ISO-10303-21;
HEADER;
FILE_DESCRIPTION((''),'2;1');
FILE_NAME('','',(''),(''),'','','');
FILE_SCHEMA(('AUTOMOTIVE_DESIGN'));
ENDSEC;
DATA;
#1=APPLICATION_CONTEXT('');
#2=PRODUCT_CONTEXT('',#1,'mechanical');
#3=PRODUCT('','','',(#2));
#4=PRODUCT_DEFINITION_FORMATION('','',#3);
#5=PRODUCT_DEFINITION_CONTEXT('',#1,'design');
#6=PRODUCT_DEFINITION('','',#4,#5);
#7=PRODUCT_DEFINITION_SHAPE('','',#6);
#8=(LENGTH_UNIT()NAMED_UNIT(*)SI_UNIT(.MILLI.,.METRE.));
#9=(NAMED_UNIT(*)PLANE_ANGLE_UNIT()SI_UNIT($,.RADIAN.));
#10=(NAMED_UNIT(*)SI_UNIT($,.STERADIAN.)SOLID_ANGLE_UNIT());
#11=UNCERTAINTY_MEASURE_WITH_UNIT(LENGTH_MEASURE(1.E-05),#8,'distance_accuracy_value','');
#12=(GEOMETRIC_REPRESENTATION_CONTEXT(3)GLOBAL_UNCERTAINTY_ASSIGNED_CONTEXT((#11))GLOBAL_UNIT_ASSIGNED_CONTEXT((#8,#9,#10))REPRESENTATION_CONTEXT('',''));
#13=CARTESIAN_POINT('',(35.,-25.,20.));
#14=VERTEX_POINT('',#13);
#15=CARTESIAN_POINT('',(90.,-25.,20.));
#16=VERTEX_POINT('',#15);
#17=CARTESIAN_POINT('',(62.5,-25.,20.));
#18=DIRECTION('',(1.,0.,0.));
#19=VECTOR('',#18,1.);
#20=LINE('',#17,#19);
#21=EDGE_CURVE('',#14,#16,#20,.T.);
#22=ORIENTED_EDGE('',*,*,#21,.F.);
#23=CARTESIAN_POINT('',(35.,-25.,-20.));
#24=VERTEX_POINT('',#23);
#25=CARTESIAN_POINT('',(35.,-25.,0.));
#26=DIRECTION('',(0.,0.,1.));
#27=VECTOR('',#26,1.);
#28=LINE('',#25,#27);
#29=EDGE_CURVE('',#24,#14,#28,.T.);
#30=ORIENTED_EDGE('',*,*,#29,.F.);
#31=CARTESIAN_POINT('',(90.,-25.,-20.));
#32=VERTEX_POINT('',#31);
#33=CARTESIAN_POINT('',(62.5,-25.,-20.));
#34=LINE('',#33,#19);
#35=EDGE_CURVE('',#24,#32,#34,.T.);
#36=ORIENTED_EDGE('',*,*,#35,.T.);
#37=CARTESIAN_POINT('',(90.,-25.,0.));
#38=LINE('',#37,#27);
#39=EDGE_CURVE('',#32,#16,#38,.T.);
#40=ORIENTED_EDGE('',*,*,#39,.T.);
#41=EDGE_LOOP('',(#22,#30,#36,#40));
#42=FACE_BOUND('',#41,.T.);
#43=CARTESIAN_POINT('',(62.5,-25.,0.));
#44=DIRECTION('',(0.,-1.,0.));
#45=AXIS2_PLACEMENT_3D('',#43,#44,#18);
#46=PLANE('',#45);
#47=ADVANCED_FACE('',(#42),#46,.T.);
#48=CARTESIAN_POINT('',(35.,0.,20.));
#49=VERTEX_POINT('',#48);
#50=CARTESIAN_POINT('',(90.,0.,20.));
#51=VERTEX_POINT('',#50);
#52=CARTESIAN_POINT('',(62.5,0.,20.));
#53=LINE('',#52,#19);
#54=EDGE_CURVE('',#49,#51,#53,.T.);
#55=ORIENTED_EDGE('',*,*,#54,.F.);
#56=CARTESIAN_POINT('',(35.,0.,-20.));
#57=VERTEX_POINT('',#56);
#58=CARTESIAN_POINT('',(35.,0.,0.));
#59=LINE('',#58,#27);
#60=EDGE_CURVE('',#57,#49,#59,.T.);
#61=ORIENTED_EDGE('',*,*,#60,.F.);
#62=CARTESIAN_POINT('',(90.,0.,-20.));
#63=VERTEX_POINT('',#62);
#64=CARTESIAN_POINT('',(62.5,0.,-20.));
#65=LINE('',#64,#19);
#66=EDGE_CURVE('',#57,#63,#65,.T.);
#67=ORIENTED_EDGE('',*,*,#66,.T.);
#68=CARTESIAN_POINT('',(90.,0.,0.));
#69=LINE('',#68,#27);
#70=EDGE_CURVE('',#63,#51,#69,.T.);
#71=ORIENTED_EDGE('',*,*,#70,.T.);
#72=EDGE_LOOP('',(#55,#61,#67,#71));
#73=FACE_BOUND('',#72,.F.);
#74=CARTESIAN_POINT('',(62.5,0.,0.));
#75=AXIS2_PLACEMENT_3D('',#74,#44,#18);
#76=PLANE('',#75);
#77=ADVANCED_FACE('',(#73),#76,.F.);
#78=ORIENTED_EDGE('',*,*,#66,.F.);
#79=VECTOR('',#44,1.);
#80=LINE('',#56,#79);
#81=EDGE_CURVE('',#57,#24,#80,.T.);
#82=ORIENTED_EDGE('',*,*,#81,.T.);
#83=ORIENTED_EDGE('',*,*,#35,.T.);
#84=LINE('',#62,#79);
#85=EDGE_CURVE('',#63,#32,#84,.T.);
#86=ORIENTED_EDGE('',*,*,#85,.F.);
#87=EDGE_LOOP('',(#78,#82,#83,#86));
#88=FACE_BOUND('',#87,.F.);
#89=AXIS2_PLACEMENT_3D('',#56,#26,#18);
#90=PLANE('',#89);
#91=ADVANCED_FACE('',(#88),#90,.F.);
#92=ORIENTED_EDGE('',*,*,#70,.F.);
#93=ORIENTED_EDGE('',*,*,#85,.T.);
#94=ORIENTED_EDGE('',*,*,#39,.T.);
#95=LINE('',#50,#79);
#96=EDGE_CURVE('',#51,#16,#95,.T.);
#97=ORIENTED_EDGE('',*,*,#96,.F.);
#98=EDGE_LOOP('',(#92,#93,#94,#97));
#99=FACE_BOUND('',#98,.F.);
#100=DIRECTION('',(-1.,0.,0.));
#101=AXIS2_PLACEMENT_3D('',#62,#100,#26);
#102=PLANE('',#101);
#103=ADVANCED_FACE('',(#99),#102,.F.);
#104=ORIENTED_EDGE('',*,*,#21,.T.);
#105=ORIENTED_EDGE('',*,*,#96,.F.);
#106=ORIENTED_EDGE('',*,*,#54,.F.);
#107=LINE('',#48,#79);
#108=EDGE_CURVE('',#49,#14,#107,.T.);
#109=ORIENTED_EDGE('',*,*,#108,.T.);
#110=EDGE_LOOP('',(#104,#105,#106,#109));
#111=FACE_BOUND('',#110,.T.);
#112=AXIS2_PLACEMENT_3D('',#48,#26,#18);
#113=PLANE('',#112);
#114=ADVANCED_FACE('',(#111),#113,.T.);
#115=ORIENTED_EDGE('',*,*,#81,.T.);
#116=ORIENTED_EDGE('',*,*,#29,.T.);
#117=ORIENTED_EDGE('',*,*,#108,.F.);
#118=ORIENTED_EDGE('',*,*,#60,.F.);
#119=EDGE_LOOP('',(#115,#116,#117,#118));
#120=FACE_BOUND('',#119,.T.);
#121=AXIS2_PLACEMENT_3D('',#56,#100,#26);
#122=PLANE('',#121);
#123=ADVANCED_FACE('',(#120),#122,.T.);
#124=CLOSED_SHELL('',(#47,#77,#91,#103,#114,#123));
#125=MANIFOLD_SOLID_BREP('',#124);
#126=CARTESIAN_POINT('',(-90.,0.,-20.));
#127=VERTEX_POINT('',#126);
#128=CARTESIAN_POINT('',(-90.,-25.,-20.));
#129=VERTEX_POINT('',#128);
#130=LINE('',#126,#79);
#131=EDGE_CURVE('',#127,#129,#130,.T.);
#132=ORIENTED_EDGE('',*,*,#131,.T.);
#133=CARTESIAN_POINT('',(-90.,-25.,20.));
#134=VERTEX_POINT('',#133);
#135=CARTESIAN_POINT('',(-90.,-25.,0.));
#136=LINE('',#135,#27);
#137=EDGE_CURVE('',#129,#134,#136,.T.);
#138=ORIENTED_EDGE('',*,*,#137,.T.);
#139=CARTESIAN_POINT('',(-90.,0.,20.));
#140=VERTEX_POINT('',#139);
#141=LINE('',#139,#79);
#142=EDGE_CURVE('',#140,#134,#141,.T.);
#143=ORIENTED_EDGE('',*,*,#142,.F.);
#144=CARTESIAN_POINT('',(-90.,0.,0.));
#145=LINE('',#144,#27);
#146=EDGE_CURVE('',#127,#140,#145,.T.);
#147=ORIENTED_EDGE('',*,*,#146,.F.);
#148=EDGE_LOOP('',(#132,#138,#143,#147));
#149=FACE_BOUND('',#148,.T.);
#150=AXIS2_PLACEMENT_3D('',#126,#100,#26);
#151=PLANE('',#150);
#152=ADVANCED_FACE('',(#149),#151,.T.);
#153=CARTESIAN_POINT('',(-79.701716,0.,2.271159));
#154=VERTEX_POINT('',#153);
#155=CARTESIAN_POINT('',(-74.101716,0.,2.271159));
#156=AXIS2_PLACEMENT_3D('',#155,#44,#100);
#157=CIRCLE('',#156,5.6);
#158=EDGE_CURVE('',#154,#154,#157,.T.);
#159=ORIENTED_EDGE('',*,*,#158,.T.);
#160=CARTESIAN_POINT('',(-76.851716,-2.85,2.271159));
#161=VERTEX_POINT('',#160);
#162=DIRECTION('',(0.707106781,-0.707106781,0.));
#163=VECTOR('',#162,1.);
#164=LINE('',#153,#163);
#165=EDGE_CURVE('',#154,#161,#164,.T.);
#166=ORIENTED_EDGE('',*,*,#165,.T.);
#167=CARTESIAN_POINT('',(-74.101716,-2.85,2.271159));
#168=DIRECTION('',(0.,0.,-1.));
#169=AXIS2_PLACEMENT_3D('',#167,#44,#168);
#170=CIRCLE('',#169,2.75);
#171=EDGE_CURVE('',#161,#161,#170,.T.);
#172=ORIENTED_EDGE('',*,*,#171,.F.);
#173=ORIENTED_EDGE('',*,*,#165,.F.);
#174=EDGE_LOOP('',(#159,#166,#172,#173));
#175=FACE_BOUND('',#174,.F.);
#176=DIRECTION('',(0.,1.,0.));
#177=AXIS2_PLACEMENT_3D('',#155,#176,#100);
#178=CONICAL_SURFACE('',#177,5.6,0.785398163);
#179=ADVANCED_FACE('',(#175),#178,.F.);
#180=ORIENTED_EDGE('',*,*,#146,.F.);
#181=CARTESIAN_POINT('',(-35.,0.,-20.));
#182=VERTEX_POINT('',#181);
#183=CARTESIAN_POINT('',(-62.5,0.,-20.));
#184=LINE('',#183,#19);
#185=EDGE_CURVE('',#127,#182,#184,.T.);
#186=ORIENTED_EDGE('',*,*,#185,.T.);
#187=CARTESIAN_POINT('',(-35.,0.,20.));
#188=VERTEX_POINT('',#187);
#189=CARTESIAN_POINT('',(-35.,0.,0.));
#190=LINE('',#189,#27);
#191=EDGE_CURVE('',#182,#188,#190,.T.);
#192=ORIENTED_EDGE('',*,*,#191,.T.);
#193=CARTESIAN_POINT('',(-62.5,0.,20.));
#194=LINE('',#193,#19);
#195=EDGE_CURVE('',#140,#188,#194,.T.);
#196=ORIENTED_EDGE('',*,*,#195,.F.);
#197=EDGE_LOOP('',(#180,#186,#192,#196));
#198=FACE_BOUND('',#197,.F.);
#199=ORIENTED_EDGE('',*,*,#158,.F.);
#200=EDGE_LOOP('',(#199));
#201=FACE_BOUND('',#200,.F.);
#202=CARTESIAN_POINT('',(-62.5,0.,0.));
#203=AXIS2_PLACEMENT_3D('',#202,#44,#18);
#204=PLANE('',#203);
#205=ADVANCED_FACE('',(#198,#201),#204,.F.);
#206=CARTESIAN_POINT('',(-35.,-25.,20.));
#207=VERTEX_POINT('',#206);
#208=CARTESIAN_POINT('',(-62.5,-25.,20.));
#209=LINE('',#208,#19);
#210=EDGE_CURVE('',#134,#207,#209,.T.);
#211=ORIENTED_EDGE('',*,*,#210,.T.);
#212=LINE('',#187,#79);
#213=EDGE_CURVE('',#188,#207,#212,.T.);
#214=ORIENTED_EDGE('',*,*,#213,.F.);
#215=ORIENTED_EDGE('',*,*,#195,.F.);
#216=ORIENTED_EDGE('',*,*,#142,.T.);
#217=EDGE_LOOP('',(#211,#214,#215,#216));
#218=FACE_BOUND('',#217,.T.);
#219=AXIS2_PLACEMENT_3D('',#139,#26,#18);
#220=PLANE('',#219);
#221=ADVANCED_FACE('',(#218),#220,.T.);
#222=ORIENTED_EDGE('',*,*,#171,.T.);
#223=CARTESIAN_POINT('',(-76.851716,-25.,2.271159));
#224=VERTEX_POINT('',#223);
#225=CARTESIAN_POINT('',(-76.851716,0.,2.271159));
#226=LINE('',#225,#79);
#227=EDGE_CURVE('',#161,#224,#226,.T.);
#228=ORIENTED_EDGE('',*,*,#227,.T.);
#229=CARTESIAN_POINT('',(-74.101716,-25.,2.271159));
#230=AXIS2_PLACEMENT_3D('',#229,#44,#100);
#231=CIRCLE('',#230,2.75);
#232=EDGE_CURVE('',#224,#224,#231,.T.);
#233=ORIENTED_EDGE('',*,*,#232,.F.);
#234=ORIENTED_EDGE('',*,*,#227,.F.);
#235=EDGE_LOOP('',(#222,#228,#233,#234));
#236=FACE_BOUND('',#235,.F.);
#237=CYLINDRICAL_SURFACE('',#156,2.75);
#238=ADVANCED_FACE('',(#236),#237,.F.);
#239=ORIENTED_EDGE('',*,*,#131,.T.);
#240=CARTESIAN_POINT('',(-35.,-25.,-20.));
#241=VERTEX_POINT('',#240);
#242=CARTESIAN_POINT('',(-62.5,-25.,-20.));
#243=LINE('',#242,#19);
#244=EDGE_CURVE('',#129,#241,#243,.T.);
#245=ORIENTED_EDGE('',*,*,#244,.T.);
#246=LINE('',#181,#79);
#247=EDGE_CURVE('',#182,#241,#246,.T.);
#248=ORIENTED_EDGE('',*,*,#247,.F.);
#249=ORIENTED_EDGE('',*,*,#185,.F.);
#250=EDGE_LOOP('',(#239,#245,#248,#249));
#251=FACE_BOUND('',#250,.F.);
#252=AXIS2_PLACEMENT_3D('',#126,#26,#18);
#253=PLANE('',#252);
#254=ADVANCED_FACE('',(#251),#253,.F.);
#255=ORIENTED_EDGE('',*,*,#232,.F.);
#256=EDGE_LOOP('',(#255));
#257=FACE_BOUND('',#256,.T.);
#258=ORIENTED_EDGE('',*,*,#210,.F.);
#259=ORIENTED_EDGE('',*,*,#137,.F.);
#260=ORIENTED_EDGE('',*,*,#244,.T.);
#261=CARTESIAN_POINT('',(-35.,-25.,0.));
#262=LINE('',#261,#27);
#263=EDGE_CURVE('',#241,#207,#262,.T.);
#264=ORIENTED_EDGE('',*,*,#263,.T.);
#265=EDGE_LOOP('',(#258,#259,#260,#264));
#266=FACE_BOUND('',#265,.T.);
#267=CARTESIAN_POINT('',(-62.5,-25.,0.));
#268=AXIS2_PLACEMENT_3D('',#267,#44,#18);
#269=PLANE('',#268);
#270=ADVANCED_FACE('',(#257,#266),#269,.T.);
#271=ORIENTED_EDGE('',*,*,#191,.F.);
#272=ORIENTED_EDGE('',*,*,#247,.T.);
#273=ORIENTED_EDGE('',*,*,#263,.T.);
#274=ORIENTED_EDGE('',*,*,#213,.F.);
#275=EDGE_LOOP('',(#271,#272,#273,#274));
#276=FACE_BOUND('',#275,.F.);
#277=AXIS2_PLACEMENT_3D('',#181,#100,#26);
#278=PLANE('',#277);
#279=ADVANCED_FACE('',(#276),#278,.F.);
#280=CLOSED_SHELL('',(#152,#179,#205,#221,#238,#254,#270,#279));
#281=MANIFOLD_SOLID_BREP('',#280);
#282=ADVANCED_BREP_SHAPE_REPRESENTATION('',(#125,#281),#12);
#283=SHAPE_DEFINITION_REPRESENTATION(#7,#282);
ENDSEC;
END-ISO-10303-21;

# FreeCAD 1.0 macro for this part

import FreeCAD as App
import Part
import Sketcher
from FreeCAD import Vector


def add_polygon(sketch, points):
    """Adds a closed chain of lines whose ends are joined by coincident constraints."""
    first, n = sketch.GeometryCount, len(points)
    for a, b in zip(points, points[1:] + points[:1]):
        sketch.addGeometry(Part.LineSegment(App.Vector(*a, 0), App.Vector(*b, 0)), False)
    for i in range(n):
        sketch.addConstraint(Sketcher.Constraint("Coincident", first + i, 2, first + (i + 1) % n, 1))

doc = App.newDocument("Part")
body = doc.addObject("PartDesign::Body", "Body")

sketch1 = body.newObject("Sketcher::SketchObject", "Sketch")
sketch1.AttachmentSupport = (doc.getObject("XZ_Plane"), [""])
sketch1.MapMode = "FlatFace"
add_polygon(sketch1, [(-90, 20), (-90, -20), (-35, -20), (-35, 20)])
sketch1.addConstraint([
    Sketcher.Constraint("Vertical", 0),
    Sketcher.Constraint("Horizontal", 1),
    Sketcher.Constraint("Vertical", 2),
    Sketcher.Constraint("Horizontal", 3),
    Sketcher.Constraint("DistanceX", 1, 1, 1, 2, 55.0),
    Sketcher.Constraint("DistanceY", 0, 2, 0, 1, 40.0),
    Sketcher.Constraint("DistanceX", 0, 2, -1, 1, 90.0),
    Sketcher.Constraint("DistanceY", 0, 2, -1, 1, 20.0),
])
pad1 = body.newObject("PartDesign::Pad", "Pad")
pad1.Profile = sketch1
pad1.Length = 25

sketch2 = body.newObject("Sketcher::SketchObject", "Sketch001")
sketch2.AttachmentSupport = (doc.getObject("XZ_Plane"), [""])
sketch2.MapMode = "FlatFace"
sketch2.addGeometry(Part.Circle(Vector(-74.1, 2.3, 0), Vector(0, 0, 1), 2.8), False)
sketch2.addConstraint([
    Sketcher.Constraint("Diameter", 0, 5.5),
    Sketcher.Constraint("DistanceY", -1, 1, 0, 3, 2.271159),
    Sketcher.Constraint("DistanceX", 0, 3, -1, 1, 74.101716),
])
doc.recompute()
hole = body.newObject("PartDesign::Hole", "Hole")
hole.Profile = sketch2
hole.ThreadType = "None"
hole.Diameter = 5.5
hole.DepthType = "ThroughAll"
hole.HoleCutType = "Countersink"
hole.HoleCutDiameter = 11.2
hole.HoleCutCountersinkAngle = 90
hole.Reversed = True
body2 = doc.addObject("PartDesign::Body", "Body001")

sketch3 = body2.newObject("Sketcher::SketchObject", "Sketch002")
sketch3.AttachmentSupport = (doc.getObject("XZ_Plane001"), [""])
sketch3.MapMode = "FlatFace"
add_polygon(sketch3, [(35, 20), (35, -20), (90, -20), (90, 20)])
sketch3.addConstraint([
    Sketcher.Constraint("Vertical", 0),
    Sketcher.Constraint("Horizontal", 1),
    Sketcher.Constraint("Vertical", 2),
    Sketcher.Constraint("Horizontal", 3),
    Sketcher.Constraint("DistanceX", 1, 1, 1, 2, 55.0),
    Sketcher.Constraint("DistanceY", 0, 2, 0, 1, 40.0),
    Sketcher.Constraint("DistanceX", -1, 1, 0, 2, 35.0),
    Sketcher.Constraint("DistanceY", 0, 2, -1, 1, 20.0),
])
pad2 = body2.newObject("PartDesign::Pad", "Pad001")
pad2.Profile = sketch3
pad2.Length = 25

doc.recompute()
